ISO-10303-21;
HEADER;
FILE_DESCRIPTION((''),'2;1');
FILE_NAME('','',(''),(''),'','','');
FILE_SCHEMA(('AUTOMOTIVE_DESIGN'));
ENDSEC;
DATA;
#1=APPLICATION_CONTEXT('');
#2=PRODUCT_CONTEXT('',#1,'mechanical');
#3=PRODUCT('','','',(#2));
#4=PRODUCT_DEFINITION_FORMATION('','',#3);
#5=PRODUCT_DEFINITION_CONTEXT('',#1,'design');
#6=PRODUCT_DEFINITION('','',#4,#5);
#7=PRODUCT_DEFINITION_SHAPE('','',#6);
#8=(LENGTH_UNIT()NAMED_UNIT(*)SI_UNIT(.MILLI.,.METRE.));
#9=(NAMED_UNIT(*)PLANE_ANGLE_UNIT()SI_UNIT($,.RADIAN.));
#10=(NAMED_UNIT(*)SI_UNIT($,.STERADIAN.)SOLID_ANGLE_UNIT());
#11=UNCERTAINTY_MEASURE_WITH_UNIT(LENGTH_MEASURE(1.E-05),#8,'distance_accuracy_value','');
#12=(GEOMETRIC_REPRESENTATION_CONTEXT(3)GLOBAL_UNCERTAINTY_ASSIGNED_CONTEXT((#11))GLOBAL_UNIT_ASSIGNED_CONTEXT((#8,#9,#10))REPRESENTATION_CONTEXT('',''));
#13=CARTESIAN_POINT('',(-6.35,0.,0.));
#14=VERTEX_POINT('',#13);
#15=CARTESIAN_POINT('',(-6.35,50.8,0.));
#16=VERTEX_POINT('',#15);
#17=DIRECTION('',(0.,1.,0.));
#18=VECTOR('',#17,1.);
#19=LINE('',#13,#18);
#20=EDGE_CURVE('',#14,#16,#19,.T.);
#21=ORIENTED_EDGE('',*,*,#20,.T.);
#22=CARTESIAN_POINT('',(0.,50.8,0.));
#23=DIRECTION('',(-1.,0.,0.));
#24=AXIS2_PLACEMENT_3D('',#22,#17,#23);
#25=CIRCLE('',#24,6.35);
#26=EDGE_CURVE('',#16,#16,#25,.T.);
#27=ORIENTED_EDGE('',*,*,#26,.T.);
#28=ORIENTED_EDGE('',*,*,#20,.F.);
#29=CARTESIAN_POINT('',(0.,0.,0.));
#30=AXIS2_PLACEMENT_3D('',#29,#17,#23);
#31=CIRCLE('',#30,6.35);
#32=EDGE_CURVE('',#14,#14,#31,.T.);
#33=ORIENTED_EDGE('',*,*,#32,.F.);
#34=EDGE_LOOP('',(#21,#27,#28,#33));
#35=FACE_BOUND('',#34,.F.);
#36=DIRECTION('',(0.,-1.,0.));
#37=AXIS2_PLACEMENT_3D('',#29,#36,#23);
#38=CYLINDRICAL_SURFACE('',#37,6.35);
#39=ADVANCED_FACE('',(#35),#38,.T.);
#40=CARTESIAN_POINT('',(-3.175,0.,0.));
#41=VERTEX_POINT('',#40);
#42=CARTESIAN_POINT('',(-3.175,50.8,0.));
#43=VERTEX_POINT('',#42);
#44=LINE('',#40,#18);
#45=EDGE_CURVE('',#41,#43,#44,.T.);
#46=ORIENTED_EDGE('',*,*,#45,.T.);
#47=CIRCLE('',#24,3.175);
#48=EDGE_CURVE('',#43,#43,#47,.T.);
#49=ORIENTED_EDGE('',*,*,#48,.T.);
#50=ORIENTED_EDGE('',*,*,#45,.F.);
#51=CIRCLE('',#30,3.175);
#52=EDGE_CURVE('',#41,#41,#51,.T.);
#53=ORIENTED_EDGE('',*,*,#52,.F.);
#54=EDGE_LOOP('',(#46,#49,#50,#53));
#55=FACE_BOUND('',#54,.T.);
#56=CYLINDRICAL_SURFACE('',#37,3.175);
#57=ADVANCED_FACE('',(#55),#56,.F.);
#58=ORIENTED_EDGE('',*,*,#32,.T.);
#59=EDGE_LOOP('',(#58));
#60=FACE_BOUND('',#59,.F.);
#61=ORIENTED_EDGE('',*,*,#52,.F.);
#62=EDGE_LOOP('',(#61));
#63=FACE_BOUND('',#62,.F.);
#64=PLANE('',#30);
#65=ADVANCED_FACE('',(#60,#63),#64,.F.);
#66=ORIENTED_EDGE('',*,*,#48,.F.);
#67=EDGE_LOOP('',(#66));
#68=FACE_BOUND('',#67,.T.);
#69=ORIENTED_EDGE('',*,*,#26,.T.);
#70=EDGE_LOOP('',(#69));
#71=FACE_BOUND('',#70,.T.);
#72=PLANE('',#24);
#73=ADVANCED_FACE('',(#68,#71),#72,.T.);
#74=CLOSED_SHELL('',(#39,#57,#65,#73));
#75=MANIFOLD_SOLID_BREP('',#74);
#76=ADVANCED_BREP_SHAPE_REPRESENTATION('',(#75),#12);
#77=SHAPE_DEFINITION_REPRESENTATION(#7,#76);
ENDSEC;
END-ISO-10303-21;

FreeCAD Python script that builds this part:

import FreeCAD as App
import Part
import Sketcher

V = App.Vector
Q = App.Units.Quantity

doc = App.newDocument("Part")
params = doc.addObject("Spreadsheet::Sheet", "Params")
for row, (alias, value) in enumerate([
    ("sketch1_diameter", "0.5 in"),
    ("sketch1_diameter2", "0.25 in"),
    ("pad1_length", "2 in"),
], start=1):
    params.set(f"A{row}", alias)
    params.set(f"B{row}", "=" + value)
    params.setAlias(f"B{row}", alias)

body = doc.addObject("PartDesign::Body", "Body")

sketch1 = doc.addObject("Sketcher::SketchObject", "Sketch")
body.addObject(sketch1)
sketch1.AttachmentSupport = (doc.XZ_Plane, [""])
sketch1.MapMode = "FlatFace"
sketch1.addGeometry([
    Part.Circle(V(0, 0, 0), V(0, 0, 1), 6.3),
    Part.Circle(V(0, 0, 0), V(0, 0, 1), 3.2),
], False)
sketch1.addConstraint([
    Sketcher.Constraint("Coincident", 0, 3, -1, 1),
    Sketcher.Constraint("Coincident", 1, 3, -1, 1),
    Sketcher.Constraint("Diameter", 0, Q("0.5 in")),
    Sketcher.Constraint("Diameter", 1, Q("0.25 in")),
])
sketch1.setExpression("Constraints[2]", "Params.sketch1_diameter")
sketch1.setExpression("Constraints[3]", "Params.sketch1_diameter2")
pad1 = doc.addObject("PartDesign::Pad", "Pad")
body.addObject(pad1)
pad1.Profile = sketch1
pad1.setExpression("Length", "Params.pad1_length")
pad1.Reversed = True

doc.recompute()
